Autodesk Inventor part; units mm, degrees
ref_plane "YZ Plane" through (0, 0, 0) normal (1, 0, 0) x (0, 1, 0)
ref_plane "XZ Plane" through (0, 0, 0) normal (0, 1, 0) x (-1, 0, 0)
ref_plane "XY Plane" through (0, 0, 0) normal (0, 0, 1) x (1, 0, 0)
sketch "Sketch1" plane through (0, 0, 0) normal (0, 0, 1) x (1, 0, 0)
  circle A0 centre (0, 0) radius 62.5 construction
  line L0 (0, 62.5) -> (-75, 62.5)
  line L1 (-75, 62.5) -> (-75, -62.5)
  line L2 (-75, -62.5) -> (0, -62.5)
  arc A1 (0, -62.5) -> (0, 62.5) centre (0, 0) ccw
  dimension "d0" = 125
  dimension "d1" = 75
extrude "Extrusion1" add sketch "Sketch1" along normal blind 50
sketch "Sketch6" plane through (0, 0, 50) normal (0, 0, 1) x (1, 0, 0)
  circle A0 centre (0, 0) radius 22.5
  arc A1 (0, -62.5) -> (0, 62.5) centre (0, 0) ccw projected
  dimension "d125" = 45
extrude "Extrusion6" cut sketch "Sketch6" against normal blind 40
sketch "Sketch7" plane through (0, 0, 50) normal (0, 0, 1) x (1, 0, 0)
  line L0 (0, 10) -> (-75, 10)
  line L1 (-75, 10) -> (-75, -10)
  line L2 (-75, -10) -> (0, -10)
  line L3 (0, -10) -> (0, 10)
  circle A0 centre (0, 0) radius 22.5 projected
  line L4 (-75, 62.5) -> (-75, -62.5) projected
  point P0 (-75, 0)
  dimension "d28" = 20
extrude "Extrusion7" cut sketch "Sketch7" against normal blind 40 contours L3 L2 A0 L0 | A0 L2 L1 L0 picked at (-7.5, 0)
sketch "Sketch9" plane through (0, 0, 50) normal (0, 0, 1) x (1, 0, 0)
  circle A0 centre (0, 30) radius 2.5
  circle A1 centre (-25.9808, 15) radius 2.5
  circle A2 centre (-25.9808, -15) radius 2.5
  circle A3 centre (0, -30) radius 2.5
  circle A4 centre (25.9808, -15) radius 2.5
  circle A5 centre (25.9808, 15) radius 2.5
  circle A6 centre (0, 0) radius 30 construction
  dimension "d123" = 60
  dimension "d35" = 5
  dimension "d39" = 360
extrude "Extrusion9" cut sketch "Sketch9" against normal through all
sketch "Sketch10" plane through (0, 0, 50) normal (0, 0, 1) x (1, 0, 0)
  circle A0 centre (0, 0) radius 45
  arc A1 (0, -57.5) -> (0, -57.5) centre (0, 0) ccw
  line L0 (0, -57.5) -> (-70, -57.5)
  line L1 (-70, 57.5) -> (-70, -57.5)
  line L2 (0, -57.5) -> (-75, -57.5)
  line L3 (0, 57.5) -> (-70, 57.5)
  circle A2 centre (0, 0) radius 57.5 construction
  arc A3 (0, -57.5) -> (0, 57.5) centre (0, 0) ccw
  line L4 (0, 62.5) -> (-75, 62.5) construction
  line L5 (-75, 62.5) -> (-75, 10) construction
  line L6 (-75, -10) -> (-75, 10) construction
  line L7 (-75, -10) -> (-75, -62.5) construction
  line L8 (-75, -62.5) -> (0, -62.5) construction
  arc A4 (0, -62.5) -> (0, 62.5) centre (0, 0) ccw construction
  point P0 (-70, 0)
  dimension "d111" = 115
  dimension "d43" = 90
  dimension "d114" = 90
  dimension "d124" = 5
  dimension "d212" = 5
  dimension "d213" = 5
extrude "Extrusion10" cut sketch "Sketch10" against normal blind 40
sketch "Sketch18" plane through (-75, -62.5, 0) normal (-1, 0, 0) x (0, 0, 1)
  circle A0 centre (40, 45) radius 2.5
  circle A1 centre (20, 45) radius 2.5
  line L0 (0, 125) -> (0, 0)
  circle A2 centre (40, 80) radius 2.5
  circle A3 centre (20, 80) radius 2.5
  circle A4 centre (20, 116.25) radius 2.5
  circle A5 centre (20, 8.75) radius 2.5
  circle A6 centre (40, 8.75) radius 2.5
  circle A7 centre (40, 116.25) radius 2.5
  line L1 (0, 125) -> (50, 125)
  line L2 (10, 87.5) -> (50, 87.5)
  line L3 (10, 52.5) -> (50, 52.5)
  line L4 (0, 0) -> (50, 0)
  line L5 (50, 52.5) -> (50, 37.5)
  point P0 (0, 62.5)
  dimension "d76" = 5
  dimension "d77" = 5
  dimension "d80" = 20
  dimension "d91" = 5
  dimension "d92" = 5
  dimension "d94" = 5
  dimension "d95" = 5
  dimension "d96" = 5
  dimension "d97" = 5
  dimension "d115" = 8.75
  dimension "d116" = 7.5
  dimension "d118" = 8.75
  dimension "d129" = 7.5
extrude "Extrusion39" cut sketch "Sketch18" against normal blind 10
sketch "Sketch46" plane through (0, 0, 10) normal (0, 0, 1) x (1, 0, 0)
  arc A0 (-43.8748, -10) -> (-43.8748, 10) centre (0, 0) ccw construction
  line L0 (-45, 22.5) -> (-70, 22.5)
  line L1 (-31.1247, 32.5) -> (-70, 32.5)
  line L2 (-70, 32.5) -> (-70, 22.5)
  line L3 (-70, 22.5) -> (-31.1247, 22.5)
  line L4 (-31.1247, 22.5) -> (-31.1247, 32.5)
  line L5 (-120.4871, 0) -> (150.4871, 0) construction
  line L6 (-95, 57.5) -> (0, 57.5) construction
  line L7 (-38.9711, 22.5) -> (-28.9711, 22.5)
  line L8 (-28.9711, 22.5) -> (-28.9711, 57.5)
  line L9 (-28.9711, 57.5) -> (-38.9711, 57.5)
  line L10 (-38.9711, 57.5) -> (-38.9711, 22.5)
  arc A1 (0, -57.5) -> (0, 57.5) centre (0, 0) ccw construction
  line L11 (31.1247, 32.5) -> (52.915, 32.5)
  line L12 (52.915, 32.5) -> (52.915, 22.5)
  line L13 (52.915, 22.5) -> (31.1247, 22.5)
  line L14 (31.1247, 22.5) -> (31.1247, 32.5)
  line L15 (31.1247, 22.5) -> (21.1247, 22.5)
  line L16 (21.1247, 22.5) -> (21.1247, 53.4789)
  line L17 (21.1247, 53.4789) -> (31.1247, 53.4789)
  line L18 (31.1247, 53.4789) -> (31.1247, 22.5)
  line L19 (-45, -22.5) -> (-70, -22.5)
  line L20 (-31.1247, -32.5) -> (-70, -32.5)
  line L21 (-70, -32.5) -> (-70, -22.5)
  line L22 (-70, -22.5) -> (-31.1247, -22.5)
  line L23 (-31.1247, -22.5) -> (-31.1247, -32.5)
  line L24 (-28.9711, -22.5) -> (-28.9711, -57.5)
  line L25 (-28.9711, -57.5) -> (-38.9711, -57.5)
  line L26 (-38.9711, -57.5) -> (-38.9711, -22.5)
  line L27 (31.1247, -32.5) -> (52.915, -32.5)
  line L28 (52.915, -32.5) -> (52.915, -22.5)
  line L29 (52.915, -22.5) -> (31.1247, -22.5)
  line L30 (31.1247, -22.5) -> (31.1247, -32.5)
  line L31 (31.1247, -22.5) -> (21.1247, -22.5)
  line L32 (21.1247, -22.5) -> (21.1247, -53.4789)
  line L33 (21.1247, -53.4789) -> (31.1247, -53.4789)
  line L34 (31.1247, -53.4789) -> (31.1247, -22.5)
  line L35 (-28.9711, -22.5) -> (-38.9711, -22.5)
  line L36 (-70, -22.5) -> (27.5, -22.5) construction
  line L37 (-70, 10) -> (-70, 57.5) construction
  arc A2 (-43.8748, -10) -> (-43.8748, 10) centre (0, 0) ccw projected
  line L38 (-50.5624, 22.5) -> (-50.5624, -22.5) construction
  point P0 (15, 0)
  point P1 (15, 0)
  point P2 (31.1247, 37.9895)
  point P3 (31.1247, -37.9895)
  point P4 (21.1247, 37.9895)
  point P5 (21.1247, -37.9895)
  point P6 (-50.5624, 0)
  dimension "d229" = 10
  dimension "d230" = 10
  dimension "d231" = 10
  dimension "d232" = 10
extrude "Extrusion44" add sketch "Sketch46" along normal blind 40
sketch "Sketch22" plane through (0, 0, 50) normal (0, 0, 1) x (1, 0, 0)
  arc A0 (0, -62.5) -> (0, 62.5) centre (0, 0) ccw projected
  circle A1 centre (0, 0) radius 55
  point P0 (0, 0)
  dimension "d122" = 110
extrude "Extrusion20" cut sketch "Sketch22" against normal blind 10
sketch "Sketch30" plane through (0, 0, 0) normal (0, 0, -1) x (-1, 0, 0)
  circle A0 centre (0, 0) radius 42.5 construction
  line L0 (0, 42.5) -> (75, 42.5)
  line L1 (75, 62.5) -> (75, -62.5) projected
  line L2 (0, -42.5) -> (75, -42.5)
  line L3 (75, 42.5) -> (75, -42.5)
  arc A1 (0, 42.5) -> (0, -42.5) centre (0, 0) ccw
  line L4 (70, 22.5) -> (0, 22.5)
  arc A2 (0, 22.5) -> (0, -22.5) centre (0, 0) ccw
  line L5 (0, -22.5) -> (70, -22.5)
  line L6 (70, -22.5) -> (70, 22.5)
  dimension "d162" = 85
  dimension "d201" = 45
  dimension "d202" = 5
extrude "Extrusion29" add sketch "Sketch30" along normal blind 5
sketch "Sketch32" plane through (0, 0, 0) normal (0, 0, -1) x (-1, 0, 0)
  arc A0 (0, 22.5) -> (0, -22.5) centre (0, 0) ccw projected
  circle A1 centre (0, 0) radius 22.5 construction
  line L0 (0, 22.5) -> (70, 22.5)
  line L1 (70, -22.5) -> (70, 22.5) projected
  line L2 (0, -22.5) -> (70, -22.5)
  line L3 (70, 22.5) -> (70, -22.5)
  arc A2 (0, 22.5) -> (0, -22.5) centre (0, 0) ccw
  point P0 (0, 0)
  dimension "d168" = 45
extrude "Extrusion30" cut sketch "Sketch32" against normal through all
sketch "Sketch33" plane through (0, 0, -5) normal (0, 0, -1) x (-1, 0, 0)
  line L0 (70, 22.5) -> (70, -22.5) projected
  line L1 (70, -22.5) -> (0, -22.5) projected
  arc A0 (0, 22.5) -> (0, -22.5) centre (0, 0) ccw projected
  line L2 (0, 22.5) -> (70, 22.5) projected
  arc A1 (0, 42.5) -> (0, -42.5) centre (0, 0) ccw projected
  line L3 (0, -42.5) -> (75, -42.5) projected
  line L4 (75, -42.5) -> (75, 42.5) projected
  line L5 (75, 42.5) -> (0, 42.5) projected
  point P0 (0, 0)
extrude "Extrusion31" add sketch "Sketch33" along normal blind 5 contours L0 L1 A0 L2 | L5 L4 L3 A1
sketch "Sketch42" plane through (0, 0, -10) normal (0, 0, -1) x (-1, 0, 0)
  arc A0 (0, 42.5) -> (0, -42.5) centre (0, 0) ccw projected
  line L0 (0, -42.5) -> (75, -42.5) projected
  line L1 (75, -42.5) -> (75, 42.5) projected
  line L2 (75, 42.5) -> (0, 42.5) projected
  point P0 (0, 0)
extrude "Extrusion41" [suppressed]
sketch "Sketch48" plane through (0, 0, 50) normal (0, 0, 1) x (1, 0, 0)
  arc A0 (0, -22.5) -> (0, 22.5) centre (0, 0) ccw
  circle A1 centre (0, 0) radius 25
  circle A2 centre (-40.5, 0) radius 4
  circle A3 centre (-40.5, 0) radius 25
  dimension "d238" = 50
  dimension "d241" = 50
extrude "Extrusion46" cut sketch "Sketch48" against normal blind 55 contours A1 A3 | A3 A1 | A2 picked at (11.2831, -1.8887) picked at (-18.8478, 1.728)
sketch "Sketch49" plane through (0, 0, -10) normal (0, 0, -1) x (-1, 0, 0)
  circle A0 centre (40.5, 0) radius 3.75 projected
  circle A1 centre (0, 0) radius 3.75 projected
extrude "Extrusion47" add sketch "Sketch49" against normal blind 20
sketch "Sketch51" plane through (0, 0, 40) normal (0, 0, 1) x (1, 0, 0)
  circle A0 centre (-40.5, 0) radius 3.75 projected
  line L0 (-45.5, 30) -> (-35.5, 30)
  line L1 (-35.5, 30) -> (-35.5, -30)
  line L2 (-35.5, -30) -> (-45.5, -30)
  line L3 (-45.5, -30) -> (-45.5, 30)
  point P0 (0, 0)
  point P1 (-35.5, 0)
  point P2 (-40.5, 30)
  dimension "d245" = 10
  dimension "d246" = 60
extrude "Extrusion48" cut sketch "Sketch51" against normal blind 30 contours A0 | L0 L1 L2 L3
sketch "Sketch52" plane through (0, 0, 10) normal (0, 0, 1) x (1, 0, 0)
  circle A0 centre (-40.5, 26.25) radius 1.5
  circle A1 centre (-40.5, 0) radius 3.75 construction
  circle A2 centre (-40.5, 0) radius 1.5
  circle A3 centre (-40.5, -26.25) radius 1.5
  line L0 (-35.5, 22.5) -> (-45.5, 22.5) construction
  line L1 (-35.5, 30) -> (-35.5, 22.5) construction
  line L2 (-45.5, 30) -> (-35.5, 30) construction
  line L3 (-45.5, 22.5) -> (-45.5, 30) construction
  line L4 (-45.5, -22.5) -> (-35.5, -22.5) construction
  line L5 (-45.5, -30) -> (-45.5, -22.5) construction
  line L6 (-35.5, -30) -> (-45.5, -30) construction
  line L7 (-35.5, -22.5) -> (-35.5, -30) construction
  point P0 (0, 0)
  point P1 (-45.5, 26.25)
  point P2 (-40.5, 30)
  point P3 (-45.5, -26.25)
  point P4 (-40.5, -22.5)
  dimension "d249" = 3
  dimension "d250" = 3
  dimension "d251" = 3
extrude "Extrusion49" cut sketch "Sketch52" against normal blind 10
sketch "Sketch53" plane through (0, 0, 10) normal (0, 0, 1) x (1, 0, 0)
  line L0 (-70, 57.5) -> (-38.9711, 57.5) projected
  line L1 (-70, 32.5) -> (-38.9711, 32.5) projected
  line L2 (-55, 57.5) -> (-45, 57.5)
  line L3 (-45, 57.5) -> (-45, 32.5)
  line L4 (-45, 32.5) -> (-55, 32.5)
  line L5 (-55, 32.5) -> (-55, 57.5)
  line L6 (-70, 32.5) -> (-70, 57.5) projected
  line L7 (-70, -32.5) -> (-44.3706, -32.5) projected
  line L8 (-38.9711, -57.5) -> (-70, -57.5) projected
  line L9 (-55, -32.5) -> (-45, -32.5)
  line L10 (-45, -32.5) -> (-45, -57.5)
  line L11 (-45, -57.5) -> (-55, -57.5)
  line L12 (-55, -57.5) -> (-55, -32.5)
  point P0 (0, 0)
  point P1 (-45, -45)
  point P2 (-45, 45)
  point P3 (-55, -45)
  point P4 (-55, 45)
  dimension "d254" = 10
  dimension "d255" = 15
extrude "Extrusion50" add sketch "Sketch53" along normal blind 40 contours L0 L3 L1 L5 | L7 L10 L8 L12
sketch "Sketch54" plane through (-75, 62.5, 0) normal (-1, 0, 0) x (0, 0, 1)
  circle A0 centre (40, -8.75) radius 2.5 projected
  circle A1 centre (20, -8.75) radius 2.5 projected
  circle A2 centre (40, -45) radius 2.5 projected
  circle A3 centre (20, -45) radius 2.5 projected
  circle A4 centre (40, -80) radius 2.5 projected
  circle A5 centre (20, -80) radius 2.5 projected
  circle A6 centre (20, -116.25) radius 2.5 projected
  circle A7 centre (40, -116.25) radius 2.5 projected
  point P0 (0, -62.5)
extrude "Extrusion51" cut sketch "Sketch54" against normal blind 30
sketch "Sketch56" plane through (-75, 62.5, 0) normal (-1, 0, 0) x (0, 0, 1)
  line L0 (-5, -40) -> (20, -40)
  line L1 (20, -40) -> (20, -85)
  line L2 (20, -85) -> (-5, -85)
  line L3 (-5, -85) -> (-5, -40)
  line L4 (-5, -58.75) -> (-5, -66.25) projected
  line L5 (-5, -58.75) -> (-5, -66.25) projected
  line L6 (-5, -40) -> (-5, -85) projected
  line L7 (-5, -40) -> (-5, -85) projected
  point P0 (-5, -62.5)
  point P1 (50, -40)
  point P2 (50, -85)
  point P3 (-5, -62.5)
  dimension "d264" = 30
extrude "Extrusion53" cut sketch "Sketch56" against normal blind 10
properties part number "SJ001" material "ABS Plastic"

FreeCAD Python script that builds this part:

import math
import FreeCAD as App
import Part
import Sketcher
Q = App.Units.Quantity

doc = App.newDocument("Part")
body = doc.addObject("PartDesign::Body", "Body")

# Sketch on XY plane
sketch1 = doc.addObject("Sketcher::SketchObject", "Sketch")
body.addObject(sketch1)
sketch1.AttachmentSupport = (doc.XY_Plane, [""])
sketch1.MapMode = "FlatFace"
sketch1.addGeometry(Part.ArcOfCircle(Part.Circle(App.Vector(0, 0, 0), App.Vector(0, 0, 1), 62), math.radians(-90), math.radians(90)), False)
sketch1.addGeometry(Part.LineSegment(App.Vector(0, 62, 0), App.Vector(-75, 62, 0)), False)
sketch1.addGeometry(Part.LineSegment(App.Vector(-75, 62, 0), App.Vector(-75, -62, 0)), False)
sketch1.addGeometry(Part.LineSegment(App.Vector(-75, -62, 0), App.Vector(0, -62, 0)), False)
sketch1.addConstraint(Sketcher.Constraint("Tangent", 0, 2, 1, 1))
sketch1.addConstraint(Sketcher.Constraint("Coincident", 1, 2, 2, 1))
sketch1.addConstraint(Sketcher.Constraint("Coincident", 2, 2, 3, 1))
sketch1.addConstraint(Sketcher.Constraint("Tangent", 3, 2, 0, 1))
sketch1.addConstraint(Sketcher.Constraint("Horizontal", 1))
sketch1.addConstraint(Sketcher.Constraint("Vertical", 2))
sketch1.addConstraint(Sketcher.Constraint("Horizontal", 3))
sketch1.addConstraint(Sketcher.Constraint("Coincident", 0, 3, -1, 1))
sketch1.addConstraint(Sketcher.Constraint("Radius", 0, Q("62.5 mm")))
sketch1.addConstraint(Sketcher.Constraint("DistanceX", 1, 2, 1, 1, Q("75 mm")))
pad1 = doc.addObject("PartDesign::Pad", "Pad")
body.addObject(pad1)
pad1.Profile = sketch1
pad1.Length = 50

# Sketch on XY plane
sketch2 = doc.addObject("Sketcher::SketchObject", "Sketch001")
body.addObject(sketch2)
sketch2.AttachmentSupport = (doc.XY_Plane, [""])
sketch2.MapMode = "FlatFace"
sketch2.AttachmentOffset = App.Placement(App.Vector(0, 0, 50), App.Rotation())
sketch2.addGeometry(Part.Circle(App.Vector(0, 0, 0), App.Vector(0, 0, 1), 22), False)
sketch2.addConstraint(Sketcher.Constraint("Coincident", 0, 3, -1, 1))
sketch2.addConstraint(Sketcher.Constraint("Diameter", 0, Q("45 mm")))
pocket1 = doc.addObject("PartDesign::Pocket", "Pocket")
body.addObject(pocket1)
pocket1.Profile = sketch2
pocket1.Length = 40

# Sketch on XY plane
sketch3 = doc.addObject("Sketcher::SketchObject", "Sketch002")
body.addObject(sketch3)
sketch3.AttachmentSupport = (doc.XY_Plane, [""])
sketch3.MapMode = "FlatFace"
sketch3.AttachmentOffset = App.Placement(App.Vector(0, 0, 50), App.Rotation())
sketch3.addGeometry(Part.LineSegment(App.Vector(0, -10, 0), App.Vector(0, 10, 0)), False)
sketch3.addGeometry(Part.LineSegment(App.Vector(0, 10, 0), App.Vector(-75, 10, 0)), False)
sketch3.addGeometry(Part.LineSegment(App.Vector(-75, 10, 0), App.Vector(-75, -10, 0)), False)
sketch3.addGeometry(Part.LineSegment(App.Vector(-75, -10, 0), App.Vector(0, -10, 0)), False)
sketch3.addConstraint(Sketcher.Constraint("Coincident", 0, 2, 1, 1))
sketch3.addConstraint(Sketcher.Constraint("Coincident", 1, 2, 2, 1))
sketch3.addConstraint(Sketcher.Constraint("Coincident", 2, 2, 3, 1))
sketch3.addConstraint(Sketcher.Constraint("Coincident", 3, 2, 0, 1))
sketch3.addConstraint(Sketcher.Constraint("Vertical", 0))
sketch3.addConstraint(Sketcher.Constraint("Horizontal", 1))
sketch3.addConstraint(Sketcher.Constraint("Vertical", 2))
sketch3.addConstraint(Sketcher.Constraint("Horizontal", 3))
sketch3.addConstraint(Sketcher.Constraint("Symmetric", 0, 2, 3, 2, -1, 1))
sketch3.addConstraint(Sketcher.Constraint("DistanceY", 0, 1, 0, 2, Q("20 mm")))
sketch3.addConstraint(Sketcher.Constraint("DistanceX", 1, 2, 1, 1, Q("75 mm")))
pocket2 = doc.addObject("PartDesign::Pocket", "Pocket001")
body.addObject(pocket2)
pocket2.Profile = sketch3
pocket2.Length = 40

# Sketch on XY plane
sketch4 = doc.addObject("Sketcher::SketchObject", "Sketch003")
body.addObject(sketch4)
sketch4.AttachmentSupport = (doc.XY_Plane, [""])
sketch4.MapMode = "FlatFace"
sketch4.AttachmentOffset = App.Placement(App.Vector(0, 0, 50), App.Rotation())
sketch4.addGeometry(Part.Circle(App.Vector(0, 30, 0), App.Vector(0, 0, 1), 2.5), False)
sketch4.addGeometry(Part.Circle(App.Vector(-26, 15, 0), App.Vector(0, 0, 1), 2.5), False)
sketch4.addGeometry(Part.Circle(App.Vector(-26, -15, 0), App.Vector(0, 0, 1), 2.5), False)
sketch4.addGeometry(Part.Circle(App.Vector(0, -30, 0), App.Vector(0, 0, 1), 2.5), False)
sketch4.addGeometry(Part.Circle(App.Vector(26, -15, 0), App.Vector(0, 0, 1), 2.5), False)
sketch4.addGeometry(Part.Circle(App.Vector(26, 15, 0), App.Vector(0, 0, 1), 2.5), False)
sketch4.addConstraint(Sketcher.Constraint("Equal", 0, 1))
sketch4.addConstraint(Sketcher.Constraint("Equal", 1, 2))
sketch4.addConstraint(Sketcher.Constraint("Equal", 2, 3))
sketch4.addConstraint(Sketcher.Constraint("Equal", 3, 4))
sketch4.addConstraint(Sketcher.Constraint("Equal", 4, 5))
sketch4.addConstraint(Sketcher.Constraint("Symmetric", 0, 3, 3, 3, -1, 1))
sketch4.addConstraint(Sketcher.Constraint("Symmetric", 1, 3, 4, 3, -1, 1))
sketch4.addConstraint(Sketcher.Constraint("Symmetric", 2, 3, 5, 3, -1, 1))
sketch4.addConstraint(Sketcher.Constraint("Symmetric", 2, 3, 4, 3, -2))
sketch4.addConstraint(Sketcher.Constraint("PointOnObject", 0, 3, -2))
sketch4.addConstraint(Sketcher.Constraint("Diameter", 0, Q("5 mm")))
sketch4.addConstraint(Sketcher.Constraint("DistanceY", 3, 3, 0, 3, Q("60 mm")))
sketch4.addConstraint(Sketcher.Constraint("DistanceY", -1, 1, 1, 3, Q("15 mm")))
sketch4.addConstraint(Sketcher.Constraint("DistanceX", 1, 3, -1, 1, Q("25.9808 mm")))
pocket3 = doc.addObject("PartDesign::Pocket", "Pocket002")
body.addObject(pocket3)
pocket3.Profile = sketch4
pocket3.Type = "ThroughAll"

# Sketch on XY plane
sketch5 = doc.addObject("Sketcher::SketchObject", "Sketch004")
body.addObject(sketch5)
sketch5.AttachmentSupport = (doc.XY_Plane, [""])
sketch5.MapMode = "FlatFace"
sketch5.AttachmentOffset = App.Placement(App.Vector(0, 0, 50), App.Rotation())
sketch5.addGeometry(Part.ArcOfCircle(Part.Circle(App.Vector(0, 0, 0), App.Vector(0, 0, 1), 58), math.radians(-90), math.radians(90)), False)
sketch5.addGeometry(Part.LineSegment(App.Vector(0, 58, 0), App.Vector(-70, 58, 0)), False)
sketch5.addGeometry(Part.LineSegment(App.Vector(-70, 58, 0), App.Vector(-70, -58, 0)), False)
sketch5.addGeometry(Part.LineSegment(App.Vector(-70, -58, 0), App.Vector(0, -58, 0)), False)
sketch5.addGeometry(Part.Circle(App.Vector(0, 0, 0), App.Vector(0, 0, 1), 45), False)
sketch5.addConstraint(Sketcher.Constraint("Tangent", 0, 2, 1, 1))
sketch5.addConstraint(Sketcher.Constraint("Coincident", 1, 2, 2, 1))
sketch5.addConstraint(Sketcher.Constraint("Coincident", 2, 2, 3, 1))
sketch5.addConstraint(Sketcher.Constraint("Tangent", 3, 2, 0, 1))
sketch5.addConstraint(Sketcher.Constraint("Horizontal", 1))
sketch5.addConstraint(Sketcher.Constraint("Vertical", 2))
sketch5.addConstraint(Sketcher.Constraint("Horizontal", 3))
sketch5.addConstraint(Sketcher.Constraint("Coincident", 0, 3, -1, 1))
sketch5.addConstraint(Sketcher.Constraint("Coincident", 4, 3, -1, 1))
sketch5.addConstraint(Sketcher.Constraint("Diameter", 4, Q("90 mm")))
sketch5.addConstraint(Sketcher.Constraint("Radius", 0, Q("57.5 mm")))
sketch5.addConstraint(Sketcher.Constraint("DistanceX", 1, 2, 1, 1, Q("70 mm")))
pocket4 = doc.addObject("PartDesign::Pocket", "Pocket003")
body.addObject(pocket4)
pocket4.Profile = sketch5
pocket4.Length = 40

# Sketch on YZ plane
sketch6 = doc.addObject("Sketcher::SketchObject", "Sketch005")
body.addObject(sketch6)
sketch6.AttachmentSupport = (doc.YZ_Plane, [""])
sketch6.MapMode = "FlatFace"
sketch6.AttachmentOffset = App.Placement(App.Vector(0, 0, -75), App.Rotation())
sketch6.addGeometry(Part.Circle(App.Vector(-17.5, 40, 0), App.Vector(0, 0, 1), 2.5), False)
sketch6.addGeometry(Part.Circle(App.Vector(-17.5, 20, 0), App.Vector(0, 0, 1), 2.5), False)
sketch6.addGeometry(Part.Circle(App.Vector(17.5, 40, 0), App.Vector(0, 0, 1), 2.5), False)
sketch6.addGeometry(Part.Circle(App.Vector(17.5, 20, 0), App.Vector(0, 0, 1), 2.5), False)
sketch6.addGeometry(Part.Circle(App.Vector(53.8, 20, 0), App.Vector(0, 0, 1), 2.5), False)
sketch6.addGeometry(Part.Circle(App.Vector(-53.8, 20, 0), App.Vector(0, 0, 1), 2.5), False)
sketch6.addGeometry(Part.Circle(App.Vector(-53.8, 40, 0), App.Vector(0, 0, 1), 2.5), False)
sketch6.addGeometry(Part.Circle(App.Vector(53.8, 40, 0), App.Vector(0, 0, 1), 2.5), False)
sketch6.addConstraint(Sketcher.Constraint("Equal", 0, 1))
sketch6.addConstraint(Sketcher.Constraint("Equal", 1, 2))
sketch6.addConstraint(Sketcher.Constraint("Equal", 2, 3))
sketch6.addConstraint(Sketcher.Constraint("Equal", 3, 4))
sketch6.addConstraint(Sketcher.Constraint("Equal", 4, 5))
sketch6.addConstraint(Sketcher.Constraint("Equal", 5, 6))
sketch6.addConstraint(Sketcher.Constraint("Equal", 6, 7))
sketch6.addConstraint(Sketcher.Constraint("Symmetric", 0, 3, 2, 3, -2))
sketch6.addConstraint(Sketcher.Constraint("Symmetric", 1, 3, 3, 3, -2))
sketch6.addConstraint(Sketcher.Constraint("Symmetric", 4, 3, 5, 3, -2))
sketch6.addConstraint(Sketcher.Constraint("Symmetric", 6, 3, 7, 3, -2))
sketch6.addConstraint(Sketcher.Constraint("Horizontal", 3, 3, 4, 3))
sketch6.addConstraint(Sketcher.Constraint("Horizontal", 2, 3, 6, 3))
sketch6.addConstraint(Sketcher.Constraint("Vertical", 0, 3, 1, 3))
sketch6.addConstraint(Sketcher.Constraint("Vertical", 5, 3, 6, 3))
sketch6.addConstraint(Sketcher.Constraint("Diameter", 0, Q("5 mm")))
sketch6.addConstraint(Sketcher.Constraint("DistanceY", -1, 1, 1, 3, Q("20 mm")))
sketch6.addConstraint(Sketcher.Constraint("DistanceY", 1, 3, 0, 3, Q("20 mm")))
sketch6.addConstraint(Sketcher.Constraint("DistanceX", 0, 3, 2, 3, Q("35 mm")))
sketch6.addConstraint(Sketcher.Constraint("DistanceX", 5, 3, 4, 3, Q("107.5 mm")))
pocket5 = doc.addObject("PartDesign::Pocket", "Pocket004")
body.addObject(pocket5)
pocket5.Profile = sketch6
pocket5.Length = 10
pocket5.Reversed = True

# Sketch on XY plane
sketch7 = doc.addObject("Sketcher::SketchObject", "Sketch006")
body.addObject(sketch7)
sketch7.AttachmentSupport = (doc.XY_Plane, [""])
sketch7.MapMode = "FlatFace"
sketch7.AttachmentOffset = App.Placement(App.Vector(0, 0, 10), App.Rotation())
sketch7.addGeometry(Part.LineSegment(App.Vector(-29, -58, 0), App.Vector(-29, -22, 0)), False)
sketch7.addGeometry(Part.LineSegment(App.Vector(-29, -22, 0), App.Vector(-70, -22, 0)), False)
sketch7.addGeometry(Part.LineSegment(App.Vector(-70, -22, 0), App.Vector(-70, -32, 0)), False)
sketch7.addGeometry(Part.LineSegment(App.Vector(-70, -32, 0), App.Vector(-39, -32, 0)), False)
sketch7.addGeometry(Part.LineSegment(App.Vector(-39, -32, 0), App.Vector(-39, -58, 0)), False)
sketch7.addGeometry(Part.LineSegment(App.Vector(-39, -58, 0), App.Vector(-29, -58, 0)), False)
sketch7.addGeometry(Part.LineSegment(App.Vector(53, -22, 0), App.Vector(21, -22, 0)), False)
sketch7.addGeometry(Part.LineSegment(App.Vector(21, -22, 0), App.Vector(21, -53, 0)), False)
sketch7.addGeometry(Part.LineSegment(App.Vector(21, -53, 0), App.Vector(31, -53, 0)), False)
sketch7.addGeometry(Part.LineSegment(App.Vector(31, -53, 0), App.Vector(31, -32, 0)), False)
sketch7.addGeometry(Part.LineSegment(App.Vector(31, -32, 0), App.Vector(53, -32, 0)), False)
sketch7.addGeometry(Part.LineSegment(App.Vector(53, -32, 0), App.Vector(53, -22, 0)), False)
sketch7.addGeometry(Part.LineSegment(App.Vector(21, 53, 0), App.Vector(21, 22, 0)), False)
sketch7.addGeometry(Part.LineSegment(App.Vector(21, 22, 0), App.Vector(53, 22, 0)), False)
sketch7.addGeometry(Part.LineSegment(App.Vector(53, 22, 0), App.Vector(53, 32, 0)), False)
sketch7.addGeometry(Part.LineSegment(App.Vector(53, 32, 0), App.Vector(31, 32, 0)), False)
sketch7.addGeometry(Part.LineSegment(App.Vector(31, 32, 0), App.Vector(31, 53, 0)), False)
sketch7.addGeometry(Part.LineSegment(App.Vector(31, 53, 0), App.Vector(21, 53, 0)), False)
sketch7.addGeometry(Part.LineSegment(App.Vector(-70, 22, 0), App.Vector(-29, 22, 0)), False)
sketch7.addGeometry(Part.LineSegment(App.Vector(-29, 22, 0), App.Vector(-29, 58, 0)), False)
sketch7.addGeometry(Part.LineSegment(App.Vector(-29, 58, 0), App.Vector(-39, 58, 0)), False)
sketch7.addGeometry(Part.LineSegment(App.Vector(-39, 58, 0), App.Vector(-39, 32, 0)), False)
sketch7.addGeometry(Part.LineSegment(App.Vector(-39, 32, 0), App.Vector(-70, 32, 0)), False)
sketch7.addGeometry(Part.LineSegment(App.Vector(-70, 32, 0), App.Vector(-70, 22, 0)), False)
sketch7.addConstraint(Sketcher.Constraint("Coincident", 0, 2, 1, 1))
sketch7.addConstraint(Sketcher.Constraint("Coincident", 1, 2, 2, 1))
sketch7.addConstraint(Sketcher.Constraint("Coincident", 2, 2, 3, 1))
sketch7.addConstraint(Sketcher.Constraint("Coincident", 3, 2, 4, 1))
sketch7.addConstraint(Sketcher.Constraint("Coincident", 4, 2, 5, 1))
sketch7.addConstraint(Sketcher.Constraint("Coincident", 5, 2, 0, 1))
sketch7.addConstraint(Sketcher.Constraint("Coincident", 6, 2, 7, 1))
sketch7.addConstraint(Sketcher.Constraint("Coincident", 7, 2, 8, 1))
sketch7.addConstraint(Sketcher.Constraint("Coincident", 8, 2, 9, 1))
sketch7.addConstraint(Sketcher.Constraint("Coincident", 9, 2, 10, 1))
sketch7.addConstraint(Sketcher.Constraint("Coincident", 10, 2, 11, 1))
sketch7.addConstraint(Sketcher.Constraint("Coincident", 11, 2, 6, 1))
sketch7.addConstraint(Sketcher.Constraint("Coincident", 12, 2, 13, 1))
sketch7.addConstraint(Sketcher.Constraint("Coincident", 13, 2, 14, 1))
sketch7.addConstraint(Sketcher.Constraint("Coincident", 14, 2, 15, 1))
sketch7.addConstraint(Sketcher.Constraint("Coincident", 15, 2, 16, 1))
sketch7.addConstraint(Sketcher.Constraint("Coincident", 16, 2, 17, 1))
sketch7.addConstraint(Sketcher.Constraint("Coincident", 17, 2, 12, 1))
sketch7.addConstraint(Sketcher.Constraint("Coincident", 18, 2, 19, 1))
sketch7.addConstraint(Sketcher.Constraint("Coincident", 19, 2, 20, 1))
sketch7.addConstraint(Sketcher.Constraint("Coincident", 20, 2, 21, 1))
sketch7.addConstraint(Sketcher.Constraint("Coincident", 21, 2, 22, 1))
sketch7.addConstraint(Sketcher.Constraint("Coincident", 22, 2, 23, 1))
sketch7.addConstraint(Sketcher.Constraint("Coincident", 23, 2, 18, 1))
sketch7.addConstraint(Sketcher.Constraint("Vertical", 0))
sketch7.addConstraint(Sketcher.Constraint("Horizontal", 1))
sketch7.addConstraint(Sketcher.Constraint("Vertical", 2))
sketch7.addConstraint(Sketcher.Constraint("Horizontal", 3))
sketch7.addConstraint(Sketcher.Constraint("Vertical", 4))
sketch7.addConstraint(Sketcher.Constraint("Horizontal", 5))
sketch7.addConstraint(Sketcher.Constraint("Horizontal", 6))
sketch7.addConstraint(Sketcher.Constraint("Vertical", 7))
sketch7.addConstraint(Sketcher.Constraint("Horizontal", 8))
sketch7.addConstraint(Sketcher.Constraint("Vertical", 9))
sketch7.addConstraint(Sketcher.Constraint("Horizontal", 10))
sketch7.addConstraint(Sketcher.Constraint("Vertical", 11))
sketch7.addConstraint(Sketcher.Constraint("Vertical", 12))
sketch7.addConstraint(Sketcher.Constraint("Horizontal", 13))
sketch7.addConstraint(Sketcher.Constraint("Vertical", 14))
sketch7.addConstraint(Sketcher.Constraint("Horizontal", 15))
sketch7.addConstraint(Sketcher.Constraint("Vertical", 16))
sketch7.addConstraint(Sketcher.Constraint("Horizontal", 17))
sketch7.addConstraint(Sketcher.Constraint("Horizontal", 18))
sketch7.addConstraint(Sketcher.Constraint("Vertical", 19))
sketch7.addConstraint(Sketcher.Constraint("Horizontal", 20))
sketch7.addConstraint(Sketcher.Constraint("Vertical", 21))
sketch7.addConstraint(Sketcher.Constraint("Horizontal", 22))
sketch7.addConstraint(Sketcher.Constraint("Vertical", 23))
sketch7.addConstraint(Sketcher.Constraint("Symmetric", 6, 2, 12, 2, -1))
sketch7.addConstraint(Sketcher.Constraint("Symmetric", 10, 2, 14, 2, -1))
sketch7.addConstraint(Sketcher.Constraint("Symmetric", 8, 2, 16, 2, -1))
sketch7.addConstraint(Sketcher.Constraint("Symmetric", 0, 2, 18, 2, -1))
sketch7.addConstraint(Sketcher.Constraint("Symmetric", 4, 2, 20, 2, -1))
sketch7.addConstraint(Sketcher.Constraint("Symmetric", 2, 2, 22, 2, -1))
sketch7.addConstraint(Sketcher.Constraint("Horizontal", 1, 2, 6, 2))
sketch7.addConstraint(Sketcher.Constraint("Horizontal", 3, 2, 9, 2))
sketch7.addConstraint(Sketcher.Constraint("Equal", 5, 8))
sketch7.addConstraint(Sketcher.Constraint("Equal", 20, 2))
sketch7.addConstraint(Sketcher.Constraint("DistanceX", 5, 1, 5, 2, Q("10 mm")))
sketch7.addConstraint(Sketcher.Constraint("DistanceY", 0, 1, 0, 2, Q("35 mm")))
sketch7.addConstraint(Sketcher.Constraint("DistanceX", 1, 2, -1, 1, Q("70 mm")))
sketch7.addConstraint(Sketcher.Constraint("DistanceY", 6, 2, 12, 2, Q("45 mm")))
sketch7.addConstraint(Sketcher.Constraint("DistanceX", 1, 2, 1, 1, Q("41.029 mm")))
sketch7.addConstraint(Sketcher.Constraint("DistanceY", 7, 2, 7, 1, Q("30.979 mm")))
sketch7.addConstraint(Sketcher.Constraint("DistanceX", 6, 2, 6, 1, Q("31.7903 mm")))
sketch7.addConstraint(Sketcher.Constraint("DistanceX", -1, 1, 10, 2, Q("52.915 mm")))
pad2 = doc.addObject("PartDesign::Pad", "Pad001")
body.addObject(pad2)
pad2.Profile = sketch7
pad2.Length = 40

# Sketch on XY plane
sketch8 = doc.addObject("Sketcher::SketchObject", "Sketch007")
body.addObject(sketch8)
sketch8.AttachmentSupport = (doc.XY_Plane, [""])
sketch8.MapMode = "FlatFace"
sketch8.AttachmentOffset = App.Placement(App.Vector(0, 0, 50), App.Rotation())
sketch8.addGeometry(Part.Circle(App.Vector(0, 0, 0), App.Vector(0, 0, 1), 55), False)
sketch8.addConstraint(Sketcher.Constraint("Coincident", 0, 3, -1, 1))
sketch8.addConstraint(Sketcher.Constraint("Diameter", 0, Q("110 mm")))
pocket6 = doc.addObject("PartDesign::Pocket", "Pocket005")
body.addObject(pocket6)
pocket6.Profile = sketch8
pocket6.Length = 10

# Sketch on XY plane
sketch9 = doc.addObject("Sketcher::SketchObject", "Sketch008")
body.addObject(sketch9)
sketch9.AttachmentSupport = (doc.XY_Plane, [""])
sketch9.MapMode = "FlatFace"
sketch9.addGeometry(Part.LineSegment(App.Vector(-75, 42, 0), App.Vector(0, 42, 0)), False)
sketch9.addGeometry(Part.ArcOfCircle(Part.Circle(App.Vector(0, 0, 0), App.Vector(0, 0, 1), 42), math.radians(-90), math.radians(90)), False)
sketch9.addGeometry(Part.LineSegment(App.Vector(0, -42, 0), App.Vector(-75, -42, 0)), False)
sketch9.addGeometry(Part.LineSegment(App.Vector(-75, -42, 0), App.Vector(-75, 42, 0)), False)
sketch9.addGeometry(Part.LineSegment(App.Vector(0, 22, 0), App.Vector(-70, 22, 0)), False)
sketch9.addGeometry(Part.LineSegment(App.Vector(-70, 22, 0), App.Vector(-70, -22, 0)), False)
sketch9.addGeometry(Part.LineSegment(App.Vector(-70, -22, 0), App.Vector(0, -22, 0)), False)
sketch9.addGeometry(Part.ArcOfCircle(Part.Circle(App.Vector(0, 0, 0), App.Vector(0, 0, 1), 22), math.radians(-90), math.radians(90)), False)
sketch9.addConstraint(Sketcher.Constraint("Tangent", 0, 2, 1, 2))
sketch9.addConstraint(Sketcher.Constraint("Tangent", 1, 1, 2, 1))
sketch9.addConstraint(Sketcher.Constraint("Coincident", 2, 2, 3, 1))
sketch9.addConstraint(Sketcher.Constraint("Coincident", 3, 2, 0, 1))
sketch9.addConstraint(Sketcher.Constraint("Coincident", 4, 2, 5, 1))
sketch9.addConstraint(Sketcher.Constraint("Coincident", 5, 2, 6, 1))
sketch9.addConstraint(Sketcher.Constraint("Tangent", 6, 2, 7, 1))
sketch9.addConstraint(Sketcher.Constraint("Tangent", 7, 2, 4, 1))
sketch9.addConstraint(Sketcher.Constraint("Horizontal", 0))
sketch9.addConstraint(Sketcher.Constraint("Horizontal", 2))
sketch9.addConstraint(Sketcher.Constraint("Vertical", 3))
sketch9.addConstraint(Sketcher.Constraint("Horizontal", 4))
sketch9.addConstraint(Sketcher.Constraint("Vertical", 5))
sketch9.addConstraint(Sketcher.Constraint("Horizontal", 6))
sketch9.addConstraint(Sketcher.Constraint("Coincident", 1, 3, -1, 1))
sketch9.addConstraint(Sketcher.Constraint("Coincident", 7, 3, -1, 1))
sketch9.addConstraint(Sketcher.Constraint("Radius", 1, Q("42.5 mm")))
sketch9.addConstraint(Sketcher.Constraint("Radius", 7, Q("22.5 mm")))
sketch9.addConstraint(Sketcher.Constraint("DistanceX", 3, 2, 4, 2, Q("5 mm")))
sketch9.addConstraint(Sketcher.Constraint("DistanceX", 0, 1, 0, 2, Q("75 mm")))
pad3 = doc.addObject("PartDesign::Pad", "Pad002")
body.addObject(pad3)
pad3.Profile = sketch9
pad3.Length = 5
pad3.Reversed = True

# Sketch on XY plane
sketch10 = doc.addObject("Sketcher::SketchObject", "Sketch009")
body.addObject(sketch10)
sketch10.AttachmentSupport = (doc.XY_Plane, [""])
sketch10.MapMode = "FlatFace"
sketch10.addGeometry(Part.LineSegment(App.Vector(-70, 22, 0), App.Vector(0, 22, 0)), False)
sketch10.addGeometry(Part.ArcOfCircle(Part.Circle(App.Vector(0, 0, 0), App.Vector(0, 0, 1), 22), math.radians(-90), math.radians(90)), False)
sketch10.addGeometry(Part.LineSegment(App.Vector(0, -22, 0), App.Vector(-70, -22, 0)), False)
sketch10.addGeometry(Part.LineSegment(App.Vector(-70, -22, 0), App.Vector(-70, 22, 0)), False)
sketch10.addConstraint(Sketcher.Constraint("Tangent", 0, 2, 1, 2))
sketch10.addConstraint(Sketcher.Constraint("Tangent", 1, 1, 2, 1))
sketch10.addConstraint(Sketcher.Constraint("Coincident", 2, 2, 3, 1))
sketch10.addConstraint(Sketcher.Constraint("Coincident", 3, 2, 0, 1))
sketch10.addConstraint(Sketcher.Constraint("Horizontal", 0))
sketch10.addConstraint(Sketcher.Constraint("Horizontal", 2))
sketch10.addConstraint(Sketcher.Constraint("Vertical", 3))
sketch10.addConstraint(Sketcher.Constraint("Coincident", 1, 3, -1, 1))
sketch10.addConstraint(Sketcher.Constraint("Radius", 1, Q("22.5 mm")))
sketch10.addConstraint(Sketcher.Constraint("DistanceX", 0, 1, 0, 2, Q("70 mm")))
pocket7 = doc.addObject("PartDesign::Pocket", "Pocket006")
body.addObject(pocket7)
pocket7.Profile = sketch10
pocket7.Type = "ThroughAll"
pocket7.Reversed = True

# Sketch on XY plane
sketch11 = doc.addObject("Sketcher::SketchObject", "Sketch010")
body.addObject(sketch11)
sketch11.AttachmentSupport = (doc.XY_Plane, [""])
sketch11.MapMode = "FlatFace"
sketch11.AttachmentOffset = App.Placement(App.Vector(0, 0, -5), App.Rotation())
sketch11.addGeometry(Part.LineSegment(App.Vector(-75, 42, 0), App.Vector(0, 42, 0)), False)
sketch11.addGeometry(Part.ArcOfCircle(Part.Circle(App.Vector(0, 0, 0), App.Vector(0, 0, 1), 42), math.radians(-90), math.radians(90)), False)
sketch11.addGeometry(Part.LineSegment(App.Vector(0, -42, 0), App.Vector(-75, -42, 0)), False)
sketch11.addGeometry(Part.LineSegment(App.Vector(-75, -42, 0), App.Vector(-75, 42, 0)), False)
sketch11.addConstraint(Sketcher.Constraint("Tangent", 0, 2, 1, 2))
sketch11.addConstraint(Sketcher.Constraint("Tangent", 1, 1, 2, 1))
sketch11.addConstraint(Sketcher.Constraint("Coincident", 2, 2, 3, 1))
sketch11.addConstraint(Sketcher.Constraint("Coincident", 3, 2, 0, 1))
sketch11.addConstraint(Sketcher.Constraint("Horizontal", 0))
sketch11.addConstraint(Sketcher.Constraint("Horizontal", 2))
sketch11.addConstraint(Sketcher.Constraint("Vertical", 3))
sketch11.addConstraint(Sketcher.Constraint("Coincident", 1, 3, -1, 1))
sketch11.addConstraint(Sketcher.Constraint("Radius", 1, Q("42.5 mm")))
sketch11.addConstraint(Sketcher.Constraint("DistanceX", 0, 1, 0, 2, Q("75 mm")))
pad4 = doc.addObject("PartDesign::Pad", "Pad003")
body.addObject(pad4)
pad4.Profile = sketch11
pad4.Length = 5
pad4.Reversed = True

# Sketch on XY plane
sketch12 = doc.addObject("Sketcher::SketchObject", "Sketch011")
body.addObject(sketch12)
sketch12.AttachmentSupport = (doc.XY_Plane, [""])
sketch12.MapMode = "FlatFace"
sketch12.AttachmentOffset = App.Placement(App.Vector(0, 0, 50), App.Rotation())
sketch12.addGeometry(Part.Circle(App.Vector(0, 0, 0), App.Vector(0, 0, 1), 25), False)
sketch12.addGeometry(Part.Circle(App.Vector(-40.5, 0, 0), App.Vector(0, 0, 1), 4), False)
sketch12.addConstraint(Sketcher.Constraint("Coincident", 0, 3, -1, 1))
sketch12.addConstraint(Sketcher.Constraint("PointOnObject", 1, 3, -1))
sketch12.addConstraint(Sketcher.Constraint("Diameter", 0, Q("50 mm")))
sketch12.addConstraint(Sketcher.Constraint("Diameter", 1, Q("8 mm")))
sketch12.addConstraint(Sketcher.Constraint("DistanceX", 1, 3, -1, 1, Q("40.5 mm")))
pocket8 = doc.addObject("PartDesign::Pocket", "Pocket007")
body.addObject(pocket8)
pocket8.Profile = sketch12
pocket8.Length = 55

# Sketch on XY plane
sketch13 = doc.addObject("Sketcher::SketchObject", "Sketch012")
body.addObject(sketch13)
sketch13.AttachmentSupport = (doc.XY_Plane, [""])
sketch13.MapMode = "FlatFace"
sketch13.AttachmentOffset = App.Placement(App.Vector(0, 0, -10), App.Rotation())
sketch13.addGeometry(Part.Circle(App.Vector(-40.5, 0, 0), App.Vector(0, 0, 1), 3.8), False)
sketch13.addGeometry(Part.Circle(App.Vector(0, 0, 0), App.Vector(0, 0, 1), 3.8), False)
sketch13.addConstraint(Sketcher.Constraint("Coincident", 1, 3, -1, 1))
sketch13.addConstraint(Sketcher.Constraint("Equal", 0, 1))
sketch13.addConstraint(Sketcher.Constraint("PointOnObject", 0, 3, -1))
sketch13.addConstraint(Sketcher.Constraint("Diameter", 0, Q("7.5 mm")))
sketch13.addConstraint(Sketcher.Constraint("DistanceX", 0, 3, -1, 1, Q("40.5 mm")))
pad5 = doc.addObject("PartDesign::Pad", "Pad004")
body.addObject(pad5)
pad5.Profile = sketch13
pad5.Length = 20

# Sketch on XY plane
sketch14 = doc.addObject("Sketcher::SketchObject", "Sketch013")
body.addObject(sketch14)
sketch14.AttachmentSupport = (doc.XY_Plane, [""])
sketch14.MapMode = "FlatFace"
sketch14.AttachmentOffset = App.Placement(App.Vector(0, 0, 40), App.Rotation())
sketch14.addGeometry(Part.LineSegment(App.Vector(-36, 30, 0), App.Vector(-46, 30, 0)), False)
sketch14.addGeometry(Part.LineSegment(App.Vector(-46, 30, 0), App.Vector(-46, -30, 0)), False)
sketch14.addGeometry(Part.LineSegment(App.Vector(-46, -30, 0), App.Vector(-36, -30, 0)), False)
sketch14.addGeometry(Part.LineSegment(App.Vector(-36, -30, 0), App.Vector(-36, 30, 0)), False)
sketch14.addConstraint(Sketcher.Constraint("Coincident", 0, 2, 1, 1))
sketch14.addConstraint(Sketcher.Constraint("Coincident", 1, 2, 2, 1))
sketch14.addConstraint(Sketcher.Constraint("Coincident", 2, 2, 3, 1))
sketch14.addConstraint(Sketcher.Constraint("Coincident", 3, 2, 0, 1))
sketch14.addConstraint(Sketcher.Constraint("Horizontal", 0))
sketch14.addConstraint(Sketcher.Constraint("Vertical", 1))
sketch14.addConstraint(Sketcher.Constraint("Horizontal", 2))
sketch14.addConstraint(Sketcher.Constraint("Vertical", 3))
sketch14.addConstraint(Sketcher.Constraint("DistanceX", 0, 2, 0, 1, Q("10 mm")))
sketch14.addConstraint(Sketcher.Constraint("DistanceY", 1, 2, 1, 1, Q("60 mm")))
sketch14.addConstraint(Sketcher.Constraint("DistanceY", -1, 1, 0, 2, Q("30 mm")))
sketch14.addConstraint(Sketcher.Constraint("DistanceX", 0, 2, -1, 1, Q("45.5 mm")))
pocket9 = doc.addObject("PartDesign::Pocket", "Pocket008")
body.addObject(pocket9)
pocket9.Profile = sketch14
pocket9.Length = 30

# Sketch on XY plane
sketch15 = doc.addObject("Sketcher::SketchObject", "Sketch014")
body.addObject(sketch15)
sketch15.AttachmentSupport = (doc.XY_Plane, [""])
sketch15.MapMode = "FlatFace"
sketch15.AttachmentOffset = App.Placement(App.Vector(0, 0, 10), App.Rotation())
sketch15.addGeometry(Part.Circle(App.Vector(-40.5, 26.2, 0), App.Vector(0, 0, 1), 1.5), False)
sketch15.addGeometry(Part.Circle(App.Vector(-40.5, 0, 0), App.Vector(0, 0, 1), 1.5), False)
sketch15.addGeometry(Part.Circle(App.Vector(-40.5, -26.2, 0), App.Vector(0, 0, 1), 1.5), False)
sketch15.addConstraint(Sketcher.Constraint("Equal", 0, 1))
sketch15.addConstraint(Sketcher.Constraint("Equal", 1, 2))
sketch15.addConstraint(Sketcher.Constraint("Symmetric", 0, 3, 2, 3, -1))
sketch15.addConstraint(Sketcher.Constraint("PointOnObject", 1, 3, -1))
sketch15.addConstraint(Sketcher.Constraint("Vertical", 0, 3, 1, 3))
sketch15.addConstraint(Sketcher.Constraint("Diameter", 0, Q("3 mm")))
sketch15.addConstraint(Sketcher.Constraint("DistanceX", 0, 3, -1, 1, Q("40.5 mm")))
sketch15.addConstraint(Sketcher.Constraint("DistanceY", 2, 3, 0, 3, Q("52.5 mm")))
pocket10 = doc.addObject("PartDesign::Pocket", "Pocket009")
body.addObject(pocket10)
pocket10.Profile = sketch15
pocket10.Length = 10

# Sketch on XY plane
sketch16 = doc.addObject("Sketcher::SketchObject", "Sketch015")
body.addObject(sketch16)
sketch16.AttachmentSupport = (doc.XY_Plane, [""])
sketch16.MapMode = "FlatFace"
sketch16.AttachmentOffset = App.Placement(App.Vector(0, 0, 10), App.Rotation())
sketch16.addGeometry(Part.LineSegment(App.Vector(-45, 58, 0), App.Vector(-55, 58, 0)), False)
sketch16.addGeometry(Part.LineSegment(App.Vector(-55, 58, 0), App.Vector(-55, 32, 0)), False)
sketch16.addGeometry(Part.LineSegment(App.Vector(-55, 32, 0), App.Vector(-45, 32, 0)), False)
sketch16.addGeometry(Part.LineSegment(App.Vector(-45, 32, 0), App.Vector(-45, 58, 0)), False)
sketch16.addGeometry(Part.LineSegment(App.Vector(-45, -32, 0), App.Vector(-55, -32, 0)), False)
sketch16.addGeometry(Part.LineSegment(App.Vector(-55, -32, 0), App.Vector(-55, -58, 0)), False)
sketch16.addGeometry(Part.LineSegment(App.Vector(-55, -58, 0), App.Vector(-45, -58, 0)), False)
sketch16.addGeometry(Part.LineSegment(App.Vector(-45, -58, 0), App.Vector(-45, -32, 0)), False)
sketch16.addConstraint(Sketcher.Constraint("Coincident", 0, 2, 1, 1))
sketch16.addConstraint(Sketcher.Constraint("Coincident", 1, 2, 2, 1))
sketch16.addConstraint(Sketcher.Constraint("Coincident", 2, 2, 3, 1))
sketch16.addConstraint(Sketcher.Constraint("Coincident", 3, 2, 0, 1))
sketch16.addConstraint(Sketcher.Constraint("Coincident", 4, 2, 5, 1))
sketch16.addConstraint(Sketcher.Constraint("Coincident", 5, 2, 6, 1))
sketch16.addConstraint(Sketcher.Constraint("Coincident", 6, 2, 7, 1))
sketch16.addConstraint(Sketcher.Constraint("Coincident", 7, 2, 4, 1))
sketch16.addConstraint(Sketcher.Constraint("Horizontal", 0))
sketch16.addConstraint(Sketcher.Constraint("Vertical", 1))
sketch16.addConstraint(Sketcher.Constraint("Horizontal", 2))
sketch16.addConstraint(Sketcher.Constraint("Vertical", 3))
sketch16.addConstraint(Sketcher.Constraint("Horizontal", 4))
sketch16.addConstraint(Sketcher.Constraint("Vertical", 5))
sketch16.addConstraint(Sketcher.Constraint("Horizontal", 6))
sketch16.addConstraint(Sketcher.Constraint("Vertical", 7))
sketch16.addConstraint(Sketcher.Constraint("Symmetric", 1, 2, 4, 2, -1))
sketch16.addConstraint(Sketcher.Constraint("Symmetric", 3, 2, 6, 2, -1))
sketch16.addConstraint(Sketcher.Constraint("DistanceX", 0, 2, 0, 1, Q("10 mm")))
sketch16.addConstraint(Sketcher.Constraint("DistanceY", 1, 2, 1, 1, Q("25 mm")))
sketch16.addConstraint(Sketcher.Constraint("DistanceX", 0, 2, -1, 1, Q("55 mm")))
sketch16.addConstraint(Sketcher.Constraint("DistanceY", 4, 2, 1, 2, Q("65 mm")))
pad6 = doc.addObject("PartDesign::Pad", "Pad005")
body.addObject(pad6)
pad6.Profile = sketch16
pad6.Length = 40

# Sketch on YZ plane
sketch17 = doc.addObject("Sketcher::SketchObject", "Sketch016")
body.addObject(sketch17)
sketch17.AttachmentSupport = (doc.YZ_Plane, [""])
sketch17.MapMode = "FlatFace"
sketch17.AttachmentOffset = App.Placement(App.Vector(0, 0, -75), App.Rotation())
sketch17.addGeometry(Part.Circle(App.Vector(53.8, 40, 0), App.Vector(0, 0, 1), 2.5), False)
sketch17.addGeometry(Part.Circle(App.Vector(53.8, 20, 0), App.Vector(0, 0, 1), 2.5), False)
sketch17.addGeometry(Part.Circle(App.Vector(17.5, 40, 0), App.Vector(0, 0, 1), 2.5), False)
sketch17.addGeometry(Part.Circle(App.Vector(17.5, 20, 0), App.Vector(0, 0, 1), 2.5), False)
sketch17.addGeometry(Part.Circle(App.Vector(-17.5, 40, 0), App.Vector(0, 0, 1), 2.5), False)
sketch17.addGeometry(Part.Circle(App.Vector(-17.5, 20, 0), App.Vector(0, 0, 1), 2.5), False)
sketch17.addGeometry(Part.Circle(App.Vector(-53.8, 20, 0), App.Vector(0, 0, 1), 2.5), False)
sketch17.addGeometry(Part.Circle(App.Vector(-53.8, 40, 0), App.Vector(0, 0, 1), 2.5), False)
sketch17.addConstraint(Sketcher.Constraint("Equal", 0, 1))
sketch17.addConstraint(Sketcher.Constraint("Equal", 1, 2))
sketch17.addConstraint(Sketcher.Constraint("Equal", 2, 3))
sketch17.addConstraint(Sketcher.Constraint("Equal", 3, 4))
sketch17.addConstraint(Sketcher.Constraint("Equal", 4, 5))
sketch17.addConstraint(Sketcher.Constraint("Equal", 5, 6))
sketch17.addConstraint(Sketcher.Constraint("Equal", 6, 7))
sketch17.addConstraint(Sketcher.Constraint("Symmetric", 2, 3, 4, 3, -2))
sketch17.addConstraint(Sketcher.Constraint("Symmetric", 3, 3, 5, 3, -2))
sketch17.addConstraint(Sketcher.Constraint("Symmetric", 1, 3, 6, 3, -2))
sketch17.addConstraint(Sketcher.Constraint("Symmetric", 0, 3, 7, 3, -2))
sketch17.addConstraint(Sketcher.Constraint("Horizontal", 0, 3, 2, 3))
sketch17.addConstraint(Sketcher.Constraint("Horizontal", 1, 3, 3, 3))
sketch17.addConstraint(Sketcher.Constraint("Vertical", 0, 3, 1, 3))
sketch17.addConstraint(Sketcher.Constraint("Vertical", 2, 3, 3, 3))
sketch17.addConstraint(Sketcher.Constraint("Diameter", 0, Q("5 mm")))
sketch17.addConstraint(Sketcher.Constraint("DistanceY", -1, 1, 0, 3, Q("40 mm")))
sketch17.addConstraint(Sketcher.Constraint("DistanceY", -1, 1, 1, 3, Q("20 mm")))
sketch17.addConstraint(Sketcher.Constraint("DistanceX", 4, 3, 2, 3, Q("35 mm")))
sketch17.addConstraint(Sketcher.Constraint("DistanceX", 6, 3, 1, 3, Q("107.5 mm")))
pocket11 = doc.addObject("PartDesign::Pocket", "Pocket010")
body.addObject(pocket11)
pocket11.Profile = sketch17
pocket11.Length = 30
pocket11.Reversed = True

# Sketch on YZ plane
sketch18 = doc.addObject("Sketcher::SketchObject", "Sketch017")
body.addObject(sketch18)
sketch18.AttachmentSupport = (doc.YZ_Plane, [""])
sketch18.MapMode = "FlatFace"
sketch18.AttachmentOffset = App.Placement(App.Vector(0, 0, -75), App.Rotation())
sketch18.addGeometry(Part.LineSegment(App.Vector(22, 20, 0), App.Vector(22, -5, 0)), False)
sketch18.addGeometry(Part.LineSegment(App.Vector(22, -5, 0), App.Vector(-22, -5, 0)), False)
sketch18.addGeometry(Part.LineSegment(App.Vector(-22, -5, 0), App.Vector(-22, 20, 0)), False)
sketch18.addGeometry(Part.LineSegment(App.Vector(-22, 20, 0), App.Vector(22, 20, 0)), False)
sketch18.addConstraint(Sketcher.Constraint("Coincident", 0, 2, 1, 1))
sketch18.addConstraint(Sketcher.Constraint("Coincident", 1, 2, 2, 1))
sketch18.addConstraint(Sketcher.Constraint("Coincident", 2, 2, 3, 1))
sketch18.addConstraint(Sketcher.Constraint("Coincident", 3, 2, 0, 1))
sketch18.addConstraint(Sketcher.Constraint("Vertical", 0))
sketch18.addConstraint(Sketcher.Constraint("Horizontal", 1))
sketch18.addConstraint(Sketcher.Constraint("Vertical", 2))
sketch18.addConstraint(Sketcher.Constraint("Horizontal", 3))
sketch18.addConstraint(Sketcher.Constraint("DistanceX", 1, 2, 1, 1, Q("45 mm")))
sketch18.addConstraint(Sketcher.Constraint("DistanceY", 0, 2, 0, 1, Q("25 mm")))
sketch18.addConstraint(Sketcher.Constraint("DistanceY", 0, 2, -1, 1, Q("5 mm")))
sketch18.addConstraint(Sketcher.Constraint("DistanceX", -1, 1, 0, 2, Q("22.5 mm")))
pocket12 = doc.addObject("PartDesign::Pocket", "Pocket011")
body.addObject(pocket12)
pocket12.Profile = sketch18
pocket12.Length = 10
pocket12.Reversed = True

doc.recompute()
